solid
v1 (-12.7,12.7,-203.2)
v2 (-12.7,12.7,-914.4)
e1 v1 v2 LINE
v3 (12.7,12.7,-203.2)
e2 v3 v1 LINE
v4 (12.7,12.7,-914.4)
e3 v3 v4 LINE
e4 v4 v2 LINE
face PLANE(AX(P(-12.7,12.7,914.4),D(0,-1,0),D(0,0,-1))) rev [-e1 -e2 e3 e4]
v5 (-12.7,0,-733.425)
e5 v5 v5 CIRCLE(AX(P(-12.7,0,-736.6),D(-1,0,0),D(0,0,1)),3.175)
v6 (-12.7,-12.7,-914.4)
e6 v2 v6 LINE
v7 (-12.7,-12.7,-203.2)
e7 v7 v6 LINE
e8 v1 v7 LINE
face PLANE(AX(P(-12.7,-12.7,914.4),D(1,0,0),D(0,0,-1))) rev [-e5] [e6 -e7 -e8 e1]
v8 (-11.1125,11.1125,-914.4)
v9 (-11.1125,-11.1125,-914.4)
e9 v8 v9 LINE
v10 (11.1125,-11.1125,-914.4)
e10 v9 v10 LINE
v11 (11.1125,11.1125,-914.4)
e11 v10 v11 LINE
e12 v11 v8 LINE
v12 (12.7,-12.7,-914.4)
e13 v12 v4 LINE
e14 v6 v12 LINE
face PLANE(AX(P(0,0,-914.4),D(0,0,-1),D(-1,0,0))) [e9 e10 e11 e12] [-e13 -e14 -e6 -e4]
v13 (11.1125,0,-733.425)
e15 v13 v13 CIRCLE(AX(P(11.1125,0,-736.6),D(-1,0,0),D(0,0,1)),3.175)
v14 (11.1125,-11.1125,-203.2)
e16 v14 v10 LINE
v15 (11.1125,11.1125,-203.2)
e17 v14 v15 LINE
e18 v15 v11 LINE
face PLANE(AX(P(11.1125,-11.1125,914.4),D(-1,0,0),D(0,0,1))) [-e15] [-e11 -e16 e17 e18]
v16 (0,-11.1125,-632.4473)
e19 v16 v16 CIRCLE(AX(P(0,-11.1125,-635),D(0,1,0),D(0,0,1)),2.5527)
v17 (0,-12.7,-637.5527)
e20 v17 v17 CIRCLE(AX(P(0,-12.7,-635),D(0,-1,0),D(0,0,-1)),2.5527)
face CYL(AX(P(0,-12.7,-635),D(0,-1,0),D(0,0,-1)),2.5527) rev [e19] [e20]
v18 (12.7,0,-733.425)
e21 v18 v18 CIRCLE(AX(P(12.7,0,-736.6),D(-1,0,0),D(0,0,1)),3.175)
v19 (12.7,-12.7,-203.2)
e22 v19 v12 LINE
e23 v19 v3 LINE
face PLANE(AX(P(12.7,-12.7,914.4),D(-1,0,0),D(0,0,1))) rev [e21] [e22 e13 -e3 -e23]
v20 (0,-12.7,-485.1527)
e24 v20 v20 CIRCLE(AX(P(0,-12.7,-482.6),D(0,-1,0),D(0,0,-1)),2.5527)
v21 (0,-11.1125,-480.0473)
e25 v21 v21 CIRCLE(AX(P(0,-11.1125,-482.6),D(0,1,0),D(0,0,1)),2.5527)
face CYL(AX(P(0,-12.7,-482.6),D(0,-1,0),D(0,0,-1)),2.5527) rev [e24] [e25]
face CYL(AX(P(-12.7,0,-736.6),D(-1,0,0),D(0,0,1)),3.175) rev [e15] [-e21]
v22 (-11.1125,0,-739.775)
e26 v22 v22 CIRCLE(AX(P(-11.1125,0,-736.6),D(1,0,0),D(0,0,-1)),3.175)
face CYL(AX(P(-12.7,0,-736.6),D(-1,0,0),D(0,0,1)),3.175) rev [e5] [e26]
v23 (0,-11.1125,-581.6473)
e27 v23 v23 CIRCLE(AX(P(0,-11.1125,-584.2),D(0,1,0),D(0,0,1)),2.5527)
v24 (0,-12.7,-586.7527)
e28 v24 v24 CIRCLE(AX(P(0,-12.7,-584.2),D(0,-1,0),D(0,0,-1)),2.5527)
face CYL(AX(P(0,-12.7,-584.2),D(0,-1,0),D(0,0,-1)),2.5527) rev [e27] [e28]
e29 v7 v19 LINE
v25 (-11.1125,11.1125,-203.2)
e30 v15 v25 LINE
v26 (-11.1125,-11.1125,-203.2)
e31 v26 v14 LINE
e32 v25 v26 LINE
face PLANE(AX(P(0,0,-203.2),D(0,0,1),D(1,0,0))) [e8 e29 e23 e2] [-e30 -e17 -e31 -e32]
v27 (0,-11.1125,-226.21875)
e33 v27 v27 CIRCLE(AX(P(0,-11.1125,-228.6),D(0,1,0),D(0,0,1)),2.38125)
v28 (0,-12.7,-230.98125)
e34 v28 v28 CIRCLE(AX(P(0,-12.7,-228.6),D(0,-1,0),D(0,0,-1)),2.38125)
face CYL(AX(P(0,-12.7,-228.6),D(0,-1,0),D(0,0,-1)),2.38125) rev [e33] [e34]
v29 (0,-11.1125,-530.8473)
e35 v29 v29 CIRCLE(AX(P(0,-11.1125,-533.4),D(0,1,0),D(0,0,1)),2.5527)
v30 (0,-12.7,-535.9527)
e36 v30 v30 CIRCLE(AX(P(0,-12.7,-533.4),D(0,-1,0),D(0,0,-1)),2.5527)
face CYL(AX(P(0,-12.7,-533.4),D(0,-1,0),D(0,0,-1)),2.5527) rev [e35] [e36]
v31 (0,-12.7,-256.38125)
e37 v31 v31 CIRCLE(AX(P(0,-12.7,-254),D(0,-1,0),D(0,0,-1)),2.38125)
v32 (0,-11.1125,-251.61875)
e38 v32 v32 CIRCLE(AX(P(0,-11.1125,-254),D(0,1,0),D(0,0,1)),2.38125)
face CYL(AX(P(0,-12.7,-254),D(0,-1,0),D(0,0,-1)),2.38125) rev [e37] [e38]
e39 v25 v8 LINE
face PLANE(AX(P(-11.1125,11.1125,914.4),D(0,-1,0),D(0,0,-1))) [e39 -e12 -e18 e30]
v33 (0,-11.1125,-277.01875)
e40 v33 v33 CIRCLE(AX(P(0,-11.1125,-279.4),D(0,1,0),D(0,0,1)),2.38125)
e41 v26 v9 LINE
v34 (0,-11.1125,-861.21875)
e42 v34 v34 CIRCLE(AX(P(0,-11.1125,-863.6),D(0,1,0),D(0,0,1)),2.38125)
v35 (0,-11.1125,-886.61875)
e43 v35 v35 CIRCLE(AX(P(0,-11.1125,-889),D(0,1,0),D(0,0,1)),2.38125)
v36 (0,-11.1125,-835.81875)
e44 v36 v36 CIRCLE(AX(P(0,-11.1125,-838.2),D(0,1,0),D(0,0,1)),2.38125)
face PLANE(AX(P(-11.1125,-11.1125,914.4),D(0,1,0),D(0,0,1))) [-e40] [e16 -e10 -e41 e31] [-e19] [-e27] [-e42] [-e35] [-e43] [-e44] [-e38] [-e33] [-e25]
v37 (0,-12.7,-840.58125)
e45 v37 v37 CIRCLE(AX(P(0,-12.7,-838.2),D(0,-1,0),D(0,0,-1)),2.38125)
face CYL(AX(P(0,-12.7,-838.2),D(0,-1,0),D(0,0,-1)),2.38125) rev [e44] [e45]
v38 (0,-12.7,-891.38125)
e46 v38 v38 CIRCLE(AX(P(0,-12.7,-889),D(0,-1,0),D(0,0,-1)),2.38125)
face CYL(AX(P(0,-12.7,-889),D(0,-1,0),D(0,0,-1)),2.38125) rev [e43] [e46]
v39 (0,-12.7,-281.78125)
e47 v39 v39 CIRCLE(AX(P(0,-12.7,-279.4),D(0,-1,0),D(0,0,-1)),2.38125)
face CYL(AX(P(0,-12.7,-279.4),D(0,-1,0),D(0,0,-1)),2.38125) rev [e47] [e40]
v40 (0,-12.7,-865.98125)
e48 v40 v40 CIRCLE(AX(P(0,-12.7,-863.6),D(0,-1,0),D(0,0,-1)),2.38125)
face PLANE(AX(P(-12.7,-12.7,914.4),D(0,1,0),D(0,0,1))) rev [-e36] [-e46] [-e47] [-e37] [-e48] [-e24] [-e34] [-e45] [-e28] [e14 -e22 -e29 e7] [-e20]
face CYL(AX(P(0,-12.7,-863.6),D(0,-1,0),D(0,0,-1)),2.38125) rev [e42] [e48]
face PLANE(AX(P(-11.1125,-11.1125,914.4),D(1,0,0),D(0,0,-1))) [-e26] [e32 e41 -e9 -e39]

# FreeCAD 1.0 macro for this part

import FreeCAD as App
import Part
import Sketcher
from FreeCAD import Vector
Q = App.Units.Quantity

doc = App.newDocument("Part")
body = doc.addObject("PartDesign::Body", "Body")

# Sketch on XY plane
sketch1 = body.newObject("Sketcher::SketchObject", "Sketch")
sketch1.AttachmentSupport = (doc.getObject("XY_Plane"), [""])
sketch1.MapMode = "FlatFace"
sketch1.addGeometry(Part.LineSegment(Vector(-12.7, 12.7, 0), Vector(-12.7, -12.7, 0)), False)
sketch1.addGeometry(Part.LineSegment(Vector(-12.7, -12.7, 0), Vector(12.7, -12.7, 0)), False)
sketch1.addGeometry(Part.LineSegment(Vector(12.7, -12.7, 0), Vector(12.7, 12.7, 0)), False)
sketch1.addGeometry(Part.LineSegment(Vector(12.7, 12.7, 0), Vector(-12.7, 12.7, 0)), False)
sketch1.addGeometry(Part.LineSegment(Vector(11.1125, -11.1125, 0), Vector(-11.1125, -11.1125, 0)), False)
sketch1.addGeometry(Part.LineSegment(Vector(-11.1125, -11.1125, 0), Vector(-11.1125, 11.1125, 0)), False)
sketch1.addGeometry(Part.LineSegment(Vector(-11.1125, 11.1125, 0), Vector(11.1125, 11.1125, 0)), False)
sketch1.addGeometry(Part.LineSegment(Vector(11.1125, 11.1125, 0), Vector(11.1125, -11.1125, 0)), False)
sketch1.addConstraint(Sketcher.Constraint("Coincident", 0, 2, 1, 1))
sketch1.addConstraint(Sketcher.Constraint("Coincident", 1, 2, 2, 1))
sketch1.addConstraint(Sketcher.Constraint("Coincident", 2, 2, 3, 1))
sketch1.addConstraint(Sketcher.Constraint("Coincident", 3, 2, 0, 1))
sketch1.addConstraint(Sketcher.Constraint("Coincident", 4, 2, 5, 1))
sketch1.addConstraint(Sketcher.Constraint("Coincident", 5, 2, 6, 1))
sketch1.addConstraint(Sketcher.Constraint("Coincident", 6, 2, 7, 1))
sketch1.addConstraint(Sketcher.Constraint("Coincident", 7, 2, 4, 1))
sketch1.addConstraint(Sketcher.Constraint("Vertical", 0))
sketch1.addConstraint(Sketcher.Constraint("Horizontal", 1))
sketch1.addConstraint(Sketcher.Constraint("Vertical", 2))
sketch1.addConstraint(Sketcher.Constraint("Horizontal", 3))
sketch1.addConstraint(Sketcher.Constraint("Horizontal", 4))
sketch1.addConstraint(Sketcher.Constraint("Vertical", 5))
sketch1.addConstraint(Sketcher.Constraint("Horizontal", 6))
sketch1.addConstraint(Sketcher.Constraint("Vertical", 7))
sketch1.addConstraint(Sketcher.Constraint("Symmetric", 0, 2, 2, 2, -1, 1))
sketch1.addConstraint(Sketcher.Constraint("Symmetric", 4, 2, 6, 2, -1, 1))
sketch1.addConstraint(Sketcher.Constraint("Equal", 3, 0))
sketch1.addConstraint(Sketcher.Constraint("Equal", 6, 5))
sketch1.addConstraint(Sketcher.Constraint("DistanceX", 1, 1, 1, 2, Q("1 in")))
sketch1.addConstraint(Sketcher.Constraint("DistanceX", 4, 2, 4, 1, Q("0.875 in")))
pad1 = body.newObject("PartDesign::Pad", "Pad")
pad1.Profile = sketch1
pad1.Type = "TwoLengths"
pad1.Length = Q("36 in")
pad1.Length2 = Q("36 in")

# Sketch on XY plane
sketch2 = body.newObject("Sketcher::SketchObject", "Sketch001")
sketch2.AttachmentSupport = (doc.getObject("XY_Plane"), [""])
sketch2.MapMode = "FlatFace"
sketch2.AttachmentOffset = App.Placement(Vector(0, 0, 36 * 25.4), App.Rotation())
sketch2.addGeometry(Part.LineSegment(Vector(-15.203211, 13.6728, 0), Vector(-15.203211, -13.6728, 0)), False)
sketch2.addGeometry(Part.LineSegment(Vector(-15.203211, -13.6728, 0), Vector(15.203211, -13.6728, 0)), False)
sketch2.addGeometry(Part.LineSegment(Vector(15.203211, -13.6728, 0), Vector(15.203211, 13.6728, 0)), False)
sketch2.addGeometry(Part.LineSegment(Vector(15.203211, 13.6728, 0), Vector(-15.203211, 13.6728, 0)), False)
sketch2.addConstraint(Sketcher.Constraint("Coincident", 0, 2, 1, 1))
sketch2.addConstraint(Sketcher.Constraint("Coincident", 1, 2, 2, 1))
sketch2.addConstraint(Sketcher.Constraint("Coincident", 2, 2, 3, 1))
sketch2.addConstraint(Sketcher.Constraint("Coincident", 3, 2, 0, 1))
sketch2.addConstraint(Sketcher.Constraint("Vertical", 0))
sketch2.addConstraint(Sketcher.Constraint("Horizontal", 1))
sketch2.addConstraint(Sketcher.Constraint("Vertical", 2))
sketch2.addConstraint(Sketcher.Constraint("Horizontal", 3))
sketch2.addConstraint(Sketcher.Constraint("Symmetric", 0, 2, 2, 2, -1, 1))
sketch2.addConstraint(Sketcher.Constraint("DistanceY", 0, 2, 0, 1, 27.345599))
sketch2.addConstraint(Sketcher.Constraint("DistanceX", 1, 1, 1, 2, 30.406423))
pocket1 = body.newObject("PartDesign::Pocket", "Pocket")
pocket1.Profile = sketch2
pocket1.Length = Q("44 in")

# Sketch on YZ plane
sketch3 = body.newObject("Sketcher::SketchObject", "Sketch002")
sketch3.AttachmentSupport = (doc.getObject("YZ_Plane"), [""])
sketch3.MapMode = "FlatFace"
sketch3.AttachmentOffset = App.Placement(Vector(0, 0, -0.5 * 25.4), App.Rotation())
sketch3.addGeometry(Part.Circle(Vector(0, -736.6, 0), Vector(0, 0, 1), 3.175), False)
sketch3.addConstraint(Sketcher.Constraint("PointOnObject", 0, 3, -2))
sketch3.addConstraint(Sketcher.Constraint("Diameter", 0, Q("0.25 in")))
sketch3.addConstraint(Sketcher.Constraint("DistanceY", 0, 3, -1, 1, Q("29 in")))
doc.recompute()
hole = body.newObject("PartDesign::Hole", "Hole")
hole.Profile = sketch3
hole.ThreadType = "None"
hole.Diameter = Q("0.25 in")
hole.DepthType = "ThroughAll"
hole.Reversed = True

# Sketch on XZ plane
sketch4 = body.newObject("Sketcher::SketchObject", "Sketch003")
sketch4.AttachmentSupport = (doc.getObject("XZ_Plane"), [""])
sketch4.MapMode = "FlatFace"
sketch4.AttachmentOffset = App.Placement(Vector(0, 0, 0.5 * 25.4), App.Rotation())
sketch4.addGeometry(Part.Circle(Vector(0, -889, 0), Vector(0, 0, 1), 2.38125), False)
sketch4.addGeometry(Part.Circle(Vector(0, -863.6, 0), Vector(0, 0, 1), 2.38125), False)
sketch4.addGeometry(Part.Circle(Vector(0, -838.2, 0), Vector(0, 0, 1), 2.38125), False)
sketch4.addGeometry(Part.Circle(Vector(0, -279.4, 0), Vector(0, 0, 1), 2.38125), False)
sketch4.addGeometry(Part.Circle(Vector(0, -254, 0), Vector(0, 0, 1), 2.38125), False)
sketch4.addGeometry(Part.Circle(Vector(0, -228.6, 0), Vector(0, 0, 1), 2.38125), False)
sketch4.addConstraint(Sketcher.Constraint("Equal", 0, 1))
sketch4.addConstraint(Sketcher.Constraint("Equal", 1, 2))
sketch4.addConstraint(Sketcher.Constraint("Equal", 2, 3))
sketch4.addConstraint(Sketcher.Constraint("Equal", 3, 4))
sketch4.addConstraint(Sketcher.Constraint("Equal", 4, 5))
sketch4.addConstraint(Sketcher.Constraint("PointOnObject", 0, 3, -2))
sketch4.addConstraint(Sketcher.Constraint("PointOnObject", 1, 3, -2))
sketch4.addConstraint(Sketcher.Constraint("PointOnObject", 2, 3, -2))
sketch4.addConstraint(Sketcher.Constraint("PointOnObject", 3, 3, -2))
sketch4.addConstraint(Sketcher.Constraint("PointOnObject", 4, 3, -2))
sketch4.addConstraint(Sketcher.Constraint("PointOnObject", 5, 3, -2))
sketch4.addConstraint(Sketcher.Constraint("Diameter", 0, Q("0.1875 in")))
sketch4.addConstraint(Sketcher.Constraint("DistanceY", 0, 3, -1, 1, Q("35 in")))
sketch4.addConstraint(Sketcher.Constraint("DistanceY", 1, 3, -1, 1, Q("34 in")))
sketch4.addConstraint(Sketcher.Constraint("DistanceY", 2, 3, -1, 1, Q("33 in")))
sketch4.addConstraint(Sketcher.Constraint("DistanceY", 3, 3, -1, 1, Q("11 in")))
sketch4.addConstraint(Sketcher.Constraint("DistanceY", 4, 3, -1, 1, Q("10 in")))
sketch4.addConstraint(Sketcher.Constraint("DistanceY", 5, 3, -1, 1, Q("9 in")))
doc.recompute()
hole2 = body.newObject("PartDesign::Hole", "Hole001")
hole2.Profile = sketch4
hole2.ThreadType = "None"
hole2.Diameter = Q("0.1875 in")
hole2.DepthType = "Dimension"
hole2.Depth = Q("0.0625 in")
hole2.DrillPoint = "Flat"

# Sketch on XZ plane
sketch5 = body.newObject("Sketcher::SketchObject", "Sketch004")
sketch5.AttachmentSupport = (doc.getObject("XZ_Plane"), [""])
sketch5.MapMode = "FlatFace"
sketch5.AttachmentOffset = App.Placement(Vector(0, 0, 0.5 * 25.4), App.Rotation())
sketch5.addGeometry(Part.Circle(Vector(0, -635, 0), Vector(0, 0, 1), 2.5527), False)
sketch5.addGeometry(Part.Circle(Vector(0, -584.2, 0), Vector(0, 0, 1), 2.5527), False)
sketch5.addGeometry(Part.Circle(Vector(0, -533.4, 0), Vector(0, 0, 1), 2.5527), False)
sketch5.addGeometry(Part.Circle(Vector(0, -482.6, 0), Vector(0, 0, 1), 2.5527), False)
sketch5.addConstraint(Sketcher.Constraint("Equal", 0, 1))
sketch5.addConstraint(Sketcher.Constraint("Equal", 1, 2))
sketch5.addConstraint(Sketcher.Constraint("Equal", 2, 3))
sketch5.addConstraint(Sketcher.Constraint("PointOnObject", 0, 3, -2))
sketch5.addConstraint(Sketcher.Constraint("PointOnObject", 1, 3, -2))
sketch5.addConstraint(Sketcher.Constraint("PointOnObject", 2, 3, -2))
sketch5.addConstraint(Sketcher.Constraint("PointOnObject", 3, 3, -2))
sketch5.addConstraint(Sketcher.Constraint("Diameter", 0, Q("0.201 in")))
sketch5.addConstraint(Sketcher.Constraint("DistanceY", 0, 3, -1, 1, Q("25 in")))
sketch5.addConstraint(Sketcher.Constraint("DistanceY", 1, 3, -1, 1, Q("23 in")))
sketch5.addConstraint(Sketcher.Constraint("DistanceY", 2, 3, -1, 1, Q("21 in")))
sketch5.addConstraint(Sketcher.Constraint("DistanceY", 3, 3, -1, 1, Q("19 in")))
doc.recompute()
hole3 = body.newObject("PartDesign::Hole", "Hole002")
hole3.Profile = sketch5
hole3.ThreadType = "None"
hole3.Diameter = Q("0.201 in")
hole3.DepthType = "Dimension"
hole3.Depth = Q("0.0625 in")
hole3.DrillPoint = "Flat"

doc.recompute()
